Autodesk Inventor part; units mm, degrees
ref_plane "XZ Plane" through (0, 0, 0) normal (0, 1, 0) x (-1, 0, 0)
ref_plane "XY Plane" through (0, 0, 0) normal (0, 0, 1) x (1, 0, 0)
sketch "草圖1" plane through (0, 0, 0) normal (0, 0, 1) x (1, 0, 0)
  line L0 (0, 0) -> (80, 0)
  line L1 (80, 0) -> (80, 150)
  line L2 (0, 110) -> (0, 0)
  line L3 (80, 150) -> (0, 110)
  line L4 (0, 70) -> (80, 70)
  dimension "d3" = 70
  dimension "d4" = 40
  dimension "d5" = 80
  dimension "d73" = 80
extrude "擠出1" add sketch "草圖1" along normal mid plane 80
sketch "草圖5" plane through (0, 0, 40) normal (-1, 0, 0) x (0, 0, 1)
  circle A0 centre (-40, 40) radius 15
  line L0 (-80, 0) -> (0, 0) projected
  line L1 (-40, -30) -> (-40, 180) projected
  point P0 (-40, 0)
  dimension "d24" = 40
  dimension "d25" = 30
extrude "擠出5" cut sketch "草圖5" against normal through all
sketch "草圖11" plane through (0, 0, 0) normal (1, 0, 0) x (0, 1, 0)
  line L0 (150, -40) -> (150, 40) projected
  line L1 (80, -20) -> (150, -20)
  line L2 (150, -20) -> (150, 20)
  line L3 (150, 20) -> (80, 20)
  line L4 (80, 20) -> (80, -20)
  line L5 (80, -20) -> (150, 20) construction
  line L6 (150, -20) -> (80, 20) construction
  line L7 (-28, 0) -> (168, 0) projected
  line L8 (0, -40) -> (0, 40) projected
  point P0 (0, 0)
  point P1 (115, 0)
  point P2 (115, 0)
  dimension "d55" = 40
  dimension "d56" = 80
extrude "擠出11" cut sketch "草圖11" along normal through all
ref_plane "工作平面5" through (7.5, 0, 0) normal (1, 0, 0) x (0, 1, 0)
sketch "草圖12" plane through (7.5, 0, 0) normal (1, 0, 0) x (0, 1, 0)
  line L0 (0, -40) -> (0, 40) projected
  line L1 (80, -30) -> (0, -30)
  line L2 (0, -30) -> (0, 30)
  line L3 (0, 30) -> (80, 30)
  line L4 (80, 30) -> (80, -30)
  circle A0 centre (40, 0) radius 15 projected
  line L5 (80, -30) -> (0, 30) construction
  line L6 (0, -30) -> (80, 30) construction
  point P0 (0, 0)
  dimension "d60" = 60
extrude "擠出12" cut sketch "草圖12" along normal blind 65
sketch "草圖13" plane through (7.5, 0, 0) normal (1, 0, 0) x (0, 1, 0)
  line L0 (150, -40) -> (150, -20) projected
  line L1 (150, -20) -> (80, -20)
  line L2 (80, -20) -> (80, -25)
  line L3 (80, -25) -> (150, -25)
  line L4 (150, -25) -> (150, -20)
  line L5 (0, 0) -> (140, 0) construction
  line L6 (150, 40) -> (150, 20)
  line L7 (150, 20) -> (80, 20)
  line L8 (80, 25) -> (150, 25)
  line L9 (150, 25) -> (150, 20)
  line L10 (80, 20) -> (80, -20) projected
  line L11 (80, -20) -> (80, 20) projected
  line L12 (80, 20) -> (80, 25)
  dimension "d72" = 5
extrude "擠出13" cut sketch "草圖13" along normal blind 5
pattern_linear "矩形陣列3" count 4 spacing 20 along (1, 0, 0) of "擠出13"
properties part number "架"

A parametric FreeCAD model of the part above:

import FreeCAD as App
import Part
import Sketcher
from FreeCAD import Vector

doc = App.newDocument("Part")
params = doc.addObject("Spreadsheet::Sheet", "Params")
for row, (alias, value) in enumerate([
    ("sketch1_width", "80 mm"),
    ("sketch1_height", "150 mm"),
    ("pad1_length", "80 mm"),
    ("sketch2_diameter", "30 mm"),
    ("sketch3_height", "40 mm"),
    ("sketch3_width", "70 mm"),
    ("sketch4_height", "60 mm"),
    ("sketch4_diameter", "30 mm"),
    ("sketch4_width", "80 mm"),
    ("pocket3_length", "65 mm"),
    ("sketch5_height", "5 mm"),
    ("sketch5_width", "70 mm"),
    ("pocket4_length", "5 mm"),
    ("linearpattern_pitch", "20 mm"),
], start=1):
    params.set(f"A{row}", alias)
    params.set(f"B{row}", "=" + value)
    params.setAlias(f"B{row}", alias)

body = doc.addObject("PartDesign::Body", "Body")

# Sketch on XY plane
sketch1 = doc.addObject("Sketcher::SketchObject", "Sketch")
body.addObject(sketch1)
sketch1.AttachmentSupport = (doc.XY_Plane, [""])
sketch1.MapMode = "FlatFace"
sketch1.addGeometry([
    Part.LineSegment(Vector(0, 0, 0), Vector(80, 0, 0)),
    Part.LineSegment(Vector(80, 0, 0), Vector(80, 150, 0)),
    Part.LineSegment(Vector(80, 150, 0), Vector(0, 110, 0)),
    Part.LineSegment(Vector(0, 110, 0), Vector(0, 0, 0)),
], False)
sketch1.addConstraint([
    Sketcher.Constraint("Coincident", 0, 2, 1, 1),
    Sketcher.Constraint("Coincident", 1, 2, 2, 1),
    Sketcher.Constraint("Coincident", 2, 2, 3, 1),
    Sketcher.Constraint("Coincident", 3, 2, 0, 1),
    Sketcher.Constraint("Horizontal", 0),
    Sketcher.Constraint("Vertical", 1),
    Sketcher.Constraint("Vertical", 3),
    Sketcher.Constraint("Coincident", 3, 2, -1, 1),
    Sketcher.Constraint("DistanceX", 0, 1, 0, 2, 80.0),
    Sketcher.Constraint("DistanceY", 2, 2, 1, 2, 40.0),
    Sketcher.Constraint("DistanceY", 1, 1, 1, 2, 150.0),
])
sketch1.setExpression("Constraints[8]", "Params.sketch1_width")
sketch1.setExpression("Constraints[10]", "Params.sketch1_height")
pad1 = doc.addObject("PartDesign::Pad", "Pad")
body.addObject(pad1)
pad1.Profile = sketch1
pad1.setExpression("Length", "Params.pad1_length")
pad1.Midplane = True

# Sketch on YZ plane
sketch2 = doc.addObject("Sketcher::SketchObject", "Sketch001")
body.addObject(sketch2)
sketch2.AttachmentSupport = (doc.YZ_Plane, [""])
sketch2.MapMode = "FlatFace"
sketch2.addGeometry(Part.Circle(Vector(40, 0, 0), Vector(0, 0, 1), 15), False)
sketch2.addConstraint([
    Sketcher.Constraint("PointOnObject", 0, 3, -1),
    Sketcher.Constraint("Diameter", 0, 30.0),
    Sketcher.Constraint("DistanceX", -1, 1, 0, 3, 40.0),
])
sketch2.setExpression("Constraints[1]", "Params.sketch2_diameter")
pocket1 = doc.addObject("PartDesign::Pocket", "Pocket")
body.addObject(pocket1)
pocket1.Profile = sketch2
pocket1.Type = "ThroughAll"
pocket1.Reversed = True

# Sketch on YZ plane
sketch3 = doc.addObject("Sketcher::SketchObject", "Sketch002")
body.addObject(sketch3)
sketch3.AttachmentSupport = (doc.YZ_Plane, [""])
sketch3.MapMode = "FlatFace"
sketch3.addGeometry([
    Part.LineSegment(Vector(80, -20, 0), Vector(150, -20, 0)),
    Part.LineSegment(Vector(150, -20, 0), Vector(150, 20, 0)),
    Part.LineSegment(Vector(150, 20, 0), Vector(80, 20, 0)),
    Part.LineSegment(Vector(80, 20, 0), Vector(80, -20, 0)),
], False)
sketch3.addConstraint([
    Sketcher.Constraint("Coincident", 0, 2, 1, 1),
    Sketcher.Constraint("Coincident", 1, 2, 2, 1),
    Sketcher.Constraint("Coincident", 2, 2, 3, 1),
    Sketcher.Constraint("Coincident", 3, 2, 0, 1),
    Sketcher.Constraint("Horizontal", 0),
    Sketcher.Constraint("Vertical", 1),
    Sketcher.Constraint("Horizontal", 2),
    Sketcher.Constraint("Vertical", 3),
    Sketcher.Constraint("DistanceY", 1, 1, 1, 2, 40.0),
    Sketcher.Constraint("DistanceX", -1, 1, 2, 2, 80.0),
    Sketcher.Constraint("DistanceX", 0, 1, 0, 2, 70.0),
    Sketcher.Constraint("DistanceY", 0, 2, -1, 1, 20.0),
])
sketch3.setExpression("Constraints[8]", "Params.sketch3_height")
sketch3.setExpression("Constraints[10]", "Params.sketch3_width")
pocket2 = doc.addObject("PartDesign::Pocket", "Pocket001")
body.addObject(pocket2)
pocket2.Profile = sketch3
pocket2.Type = "ThroughAll"
pocket2.Reversed = True

# Sketch on YZ plane
sketch4 = doc.addObject("Sketcher::SketchObject", "Sketch003")
body.addObject(sketch4)
sketch4.AttachmentSupport = (doc.YZ_Plane, [""])
sketch4.MapMode = "FlatFace"
sketch4.AttachmentOffset = App.Placement(Vector(0, 0, 7.5), App.Rotation())
sketch4.addGeometry([
    Part.LineSegment(Vector(0, 30, 0), Vector(0, -30, 0)),  # 0
    Part.LineSegment(Vector(0, -30, 0), Vector(80, -30, 0)),  # 1
    Part.LineSegment(Vector(80, -30, 0), Vector(80, 30, 0)),  # 2
    Part.LineSegment(Vector(80, 30, 0), Vector(0, 30, 0)),  # 3
    Part.Circle(Vector(40, 0, 0), Vector(0, 0, 1), 15),  # 4
], False)
sketch4.addConstraint([
    Sketcher.Constraint("Coincident", 0, 2, 1, 1),
    Sketcher.Constraint("Coincident", 1, 2, 2, 1),
    Sketcher.Constraint("Coincident", 2, 2, 3, 1),
    Sketcher.Constraint("Coincident", 3, 2, 0, 1),
    Sketcher.Constraint("Vertical", 0),
    Sketcher.Constraint("Horizontal", 1),
    Sketcher.Constraint("Vertical", 2),
    Sketcher.Constraint("Horizontal", 3),
    Sketcher.Constraint("Symmetric", 0, 2, 3, 2, -1, 1),
    Sketcher.Constraint("PointOnObject", 4, 3, -1),
    Sketcher.Constraint("DistanceY", 0, 2, 0, 1, 60.0),
    Sketcher.Constraint("Diameter", 4, 30.0),
    Sketcher.Constraint("DistanceX", 1, 1, 1, 2, 80.0),
    Sketcher.Constraint("DistanceX", -1, 1, 4, 3, 40.0),
])
sketch4.setExpression("Constraints[10]", "Params.sketch4_height")
sketch4.setExpression("Constraints[11]", "Params.sketch4_diameter")
sketch4.setExpression("Constraints[12]", "Params.sketch4_width")
pocket3 = doc.addObject("PartDesign::Pocket", "Pocket002")
body.addObject(pocket3)
pocket3.Profile = sketch4
pocket3.setExpression("Length", "Params.pocket3_length")
pocket3.Reversed = True

# Sketch on YZ plane
sketch5 = doc.addObject("Sketcher::SketchObject", "Sketch004")
body.addObject(sketch5)
sketch5.AttachmentSupport = (doc.YZ_Plane, [""])
sketch5.MapMode = "FlatFace"
sketch5.AttachmentOffset = App.Placement(Vector(0, 0, 7.5), App.Rotation())
sketch5.addGeometry([
    Part.LineSegment(Vector(80, -25, 0), Vector(150, -25, 0)),  # 0
    Part.LineSegment(Vector(150, -25, 0), Vector(150, -20, 0)),  # 1
    Part.LineSegment(Vector(150, -20, 0), Vector(80, -20, 0)),  # 2
    Part.LineSegment(Vector(80, -20, 0), Vector(80, -25, 0)),  # 3
    Part.LineSegment(Vector(80, 25, 0), Vector(80, 20, 0)),  # 4
    Part.LineSegment(Vector(80, 20, 0), Vector(150, 20, 0)),  # 5
    Part.LineSegment(Vector(150, 20, 0), Vector(150, 25, 0)),  # 6
    Part.LineSegment(Vector(150, 25, 0), Vector(80, 25, 0)),  # 7
], False)
sketch5.addConstraint([
    Sketcher.Constraint("Coincident", 0, 2, 1, 1),
    Sketcher.Constraint("Coincident", 1, 2, 2, 1),
    Sketcher.Constraint("Coincident", 2, 2, 3, 1),
    Sketcher.Constraint("Coincident", 3, 2, 0, 1),
    Sketcher.Constraint("Coincident", 4, 2, 5, 1),
    Sketcher.Constraint("Coincident", 5, 2, 6, 1),
    Sketcher.Constraint("Coincident", 6, 2, 7, 1),
    Sketcher.Constraint("Coincident", 7, 2, 4, 1),
    Sketcher.Constraint("Horizontal", 0),
    Sketcher.Constraint("Vertical", 1),
    Sketcher.Constraint("Horizontal", 2),
    Sketcher.Constraint("Vertical", 3),
    Sketcher.Constraint("Vertical", 4),
    Sketcher.Constraint("Horizontal", 5),
    Sketcher.Constraint("Vertical", 6),
    Sketcher.Constraint("Horizontal", 7),
    Sketcher.Constraint("Symmetric", 2, 2, 4, 2, -1),
    Sketcher.Constraint("Symmetric", 0, 2, 6, 2, -1),
    Sketcher.Constraint("DistanceY", 1, 1, 1, 2, 5.0),
    Sketcher.Constraint("DistanceX", 0, 1, 0, 2, 70.0),
    Sketcher.Constraint("DistanceX", -1, 1, 0, 2, 150.0),
    Sketcher.Constraint("DistanceY", 0, 2, -1, 1, 25.0),
])
sketch5.setExpression("Constraints[18]", "Params.sketch5_height")
sketch5.setExpression("Constraints[19]", "Params.sketch5_width")
pocket4 = doc.addObject("PartDesign::Pocket", "Pocket003")
body.addObject(pocket4)
pocket4.Profile = sketch5
pocket4.setExpression("Length", "Params.pocket4_length")
pocket4.Reversed = True
doc.recompute()

linearpattern = doc.addObject("PartDesign::LinearPattern", "LinearPattern")
body.addObject(linearpattern)
linearpattern.Originals = [pocket4]
linearpattern.Direction = (doc.X_Axis, [""])
linearpattern.Mode = "offset"
linearpattern.setExpression("Offset", "Params.linearpattern_pitch")
linearpattern.Occurrences = 4
body.Tip = linearpattern

doc.recompute()
